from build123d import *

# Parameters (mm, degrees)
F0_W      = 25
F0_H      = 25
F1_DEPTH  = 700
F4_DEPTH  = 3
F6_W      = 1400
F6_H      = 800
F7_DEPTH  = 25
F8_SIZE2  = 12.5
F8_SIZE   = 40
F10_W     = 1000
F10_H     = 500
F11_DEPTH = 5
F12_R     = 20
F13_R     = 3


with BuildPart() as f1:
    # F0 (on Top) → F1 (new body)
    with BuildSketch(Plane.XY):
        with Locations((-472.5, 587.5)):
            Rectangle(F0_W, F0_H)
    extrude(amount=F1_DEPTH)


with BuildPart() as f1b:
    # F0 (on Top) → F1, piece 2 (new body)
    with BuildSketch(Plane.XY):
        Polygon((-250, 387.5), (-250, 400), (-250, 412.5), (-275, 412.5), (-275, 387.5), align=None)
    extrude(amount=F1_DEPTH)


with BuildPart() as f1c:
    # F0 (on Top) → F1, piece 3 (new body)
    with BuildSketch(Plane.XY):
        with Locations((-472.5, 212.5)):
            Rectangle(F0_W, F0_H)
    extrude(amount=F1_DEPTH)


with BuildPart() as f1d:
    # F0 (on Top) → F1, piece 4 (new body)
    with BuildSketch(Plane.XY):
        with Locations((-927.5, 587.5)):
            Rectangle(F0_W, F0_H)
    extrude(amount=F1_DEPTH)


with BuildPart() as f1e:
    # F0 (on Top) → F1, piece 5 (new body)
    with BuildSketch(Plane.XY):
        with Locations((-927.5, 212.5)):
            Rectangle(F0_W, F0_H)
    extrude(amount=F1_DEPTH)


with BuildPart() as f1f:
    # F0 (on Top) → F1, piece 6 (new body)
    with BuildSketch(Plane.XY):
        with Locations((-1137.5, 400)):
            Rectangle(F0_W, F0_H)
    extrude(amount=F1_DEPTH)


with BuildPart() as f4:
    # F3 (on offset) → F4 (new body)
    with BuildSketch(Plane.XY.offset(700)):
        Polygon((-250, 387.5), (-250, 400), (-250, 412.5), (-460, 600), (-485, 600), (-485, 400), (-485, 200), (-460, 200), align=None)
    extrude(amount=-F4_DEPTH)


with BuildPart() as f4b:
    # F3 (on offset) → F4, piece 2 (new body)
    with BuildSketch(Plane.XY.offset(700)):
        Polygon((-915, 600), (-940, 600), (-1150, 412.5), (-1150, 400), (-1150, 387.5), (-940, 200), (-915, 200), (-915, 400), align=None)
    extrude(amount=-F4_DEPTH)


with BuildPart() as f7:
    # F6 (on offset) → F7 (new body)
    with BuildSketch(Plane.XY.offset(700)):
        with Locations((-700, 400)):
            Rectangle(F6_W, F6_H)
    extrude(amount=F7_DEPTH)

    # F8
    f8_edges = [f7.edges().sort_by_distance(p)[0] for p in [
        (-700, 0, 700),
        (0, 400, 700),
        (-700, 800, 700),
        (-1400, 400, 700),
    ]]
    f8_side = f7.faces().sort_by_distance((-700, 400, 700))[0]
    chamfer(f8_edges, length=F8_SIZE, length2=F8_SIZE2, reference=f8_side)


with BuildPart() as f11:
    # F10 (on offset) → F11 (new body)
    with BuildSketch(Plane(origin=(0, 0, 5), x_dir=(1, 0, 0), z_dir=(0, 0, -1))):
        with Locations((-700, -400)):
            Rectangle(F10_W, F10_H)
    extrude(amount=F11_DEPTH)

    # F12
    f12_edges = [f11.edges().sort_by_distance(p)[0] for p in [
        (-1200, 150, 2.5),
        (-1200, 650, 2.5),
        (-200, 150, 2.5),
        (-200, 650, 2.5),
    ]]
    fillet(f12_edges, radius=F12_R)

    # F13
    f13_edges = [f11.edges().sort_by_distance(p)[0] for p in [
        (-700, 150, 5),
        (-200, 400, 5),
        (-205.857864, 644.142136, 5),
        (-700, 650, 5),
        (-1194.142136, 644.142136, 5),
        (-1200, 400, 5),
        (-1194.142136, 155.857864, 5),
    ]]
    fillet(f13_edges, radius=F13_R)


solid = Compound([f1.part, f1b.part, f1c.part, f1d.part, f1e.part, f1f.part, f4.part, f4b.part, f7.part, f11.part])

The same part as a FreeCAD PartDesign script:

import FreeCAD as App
import Part
import Sketcher
from FreeCAD import Vector


def edges_at(feature, points):
    """Names of the edges that pass closest to the given points."""
    edges = feature.Shape.Edges
    near = lambda p: min(range(len(edges)), key=lambda i: edges[i].distToShape(Part.Vertex(*p))[0])
    return sorted({f"Edge{near(p) + 1}" for p in points})


def add_polygon(sketch, points):
    """Adds a closed chain of lines whose ends are joined by coincident constraints."""
    first, n = sketch.GeometryCount, len(points)
    for a, b in zip(points, points[1:] + points[:1]):
        sketch.addGeometry(Part.LineSegment(App.Vector(*a, 0), App.Vector(*b, 0)), False)
    for i in range(n):
        sketch.addConstraint(Sketcher.Constraint("Coincident", first + i, 2, first + (i + 1) % n, 1))

doc = App.newDocument("Part")
body = doc.addObject("PartDesign::Body", "Body")

# Sketch on XY plane
sketch1 = doc.addObject("Sketcher::SketchObject", "Sketch")
body.addObject(sketch1)
sketch1.AttachmentSupport = (doc.XY_Plane, [""])
sketch1.MapMode = "FlatFace"
add_polygon(sketch1, [(-485, 600), (-485, 575), (-460, 575), (-460, 600)])  # lines 0-3
sketch1.addConstraint([
    Sketcher.Constraint("Vertical", 0),
    Sketcher.Constraint("Horizontal", 1),
    Sketcher.Constraint("Vertical", 2),
    Sketcher.Constraint("Horizontal", 3),
    Sketcher.Constraint("Equal", 3, 0),
    Sketcher.Constraint("DistanceX", 1, 1, 1, 2, 25.0),
    Sketcher.Constraint("DistanceX", 0, 2, -1, 1, 485.0),
    Sketcher.Constraint("DistanceY", -1, 1, 0, 2, 575.0),
])
pad1 = doc.addObject("PartDesign::Pad", "Pad")
body.addObject(pad1)
pad1.Profile = sketch1
pad1.Length = 700
body2 = doc.addObject("PartDesign::Body", "Body001")

# Sketch on XY plane
sketch2 = doc.addObject("Sketcher::SketchObject", "Sketch001")
body2.addObject(sketch2)
sketch2.AttachmentSupport = (doc.getObject("XY_Plane001"), [""])
sketch2.MapMode = "FlatFace"
add_polygon(sketch2, [(-250, 388), (-250, 412), (-275, 412), (-275, 388)])  # lines 0-3
sketch2.addConstraint([
    Sketcher.Constraint("Vertical", 0),
    Sketcher.Constraint("Horizontal", 1),
    Sketcher.Constraint("Vertical", 2),
    Sketcher.Constraint("Horizontal", 3),
    Sketcher.Constraint("Equal", 3, 0),
    Sketcher.Constraint("DistanceX", 1, 2, 1, 1, 25.0),
    Sketcher.Constraint("DistanceX", 0, 2, -1, 1, 250.0),
    Sketcher.Constraint("DistanceY", -1, 1, 0, 2, 412.5),
])
pad2 = doc.addObject("PartDesign::Pad", "Pad001")
body2.addObject(pad2)
pad2.Profile = sketch2
pad2.Length = 700
body3 = doc.addObject("PartDesign::Body", "Body002")

# Sketch on XY plane
sketch3 = doc.addObject("Sketcher::SketchObject", "Sketch002")
body3.addObject(sketch3)
sketch3.AttachmentSupport = (doc.getObject("XY_Plane002"), [""])
sketch3.MapMode = "FlatFace"
add_polygon(sketch3, [(-485, 225), (-485, 200), (-460, 200), (-460, 225)])  # lines 0-3
sketch3.addConstraint([
    Sketcher.Constraint("Vertical", 0),
    Sketcher.Constraint("Horizontal", 1),
    Sketcher.Constraint("Vertical", 2),
    Sketcher.Constraint("Horizontal", 3),
    Sketcher.Constraint("Equal", 3, 0),
    Sketcher.Constraint("DistanceX", 1, 1, 1, 2, 25.0),
    Sketcher.Constraint("DistanceX", 0, 2, -1, 1, 485.0),
    Sketcher.Constraint("DistanceY", -1, 1, 0, 2, 200.0),
])
pad3 = doc.addObject("PartDesign::Pad", "Pad002")
body3.addObject(pad3)
pad3.Profile = sketch3
pad3.Length = 700
body4 = doc.addObject("PartDesign::Body", "Body003")

# Sketch on XY plane
sketch4 = doc.addObject("Sketcher::SketchObject", "Sketch003")
body4.addObject(sketch4)
sketch4.AttachmentSupport = (doc.getObject("XY_Plane003"), [""])
sketch4.MapMode = "FlatFace"
add_polygon(sketch4, [(-940, 600), (-940, 575), (-915, 575), (-915, 600)])  # lines 0-3
sketch4.addConstraint([
    Sketcher.Constraint("Vertical", 0),
    Sketcher.Constraint("Horizontal", 1),
    Sketcher.Constraint("Vertical", 2),
    Sketcher.Constraint("Horizontal", 3),
    Sketcher.Constraint("Equal", 3, 0),
    Sketcher.Constraint("DistanceX", 1, 1, 1, 2, 25.0),
    Sketcher.Constraint("DistanceX", 0, 2, -1, 1, 940.0),
    Sketcher.Constraint("DistanceY", -1, 1, 0, 2, 575.0),
])
pad4 = doc.addObject("PartDesign::Pad", "Pad003")
body4.addObject(pad4)
pad4.Profile = sketch4
pad4.Length = 700
body5 = doc.addObject("PartDesign::Body", "Body004")

# Sketch on XY plane
sketch5 = doc.addObject("Sketcher::SketchObject", "Sketch004")
body5.addObject(sketch5)
sketch5.AttachmentSupport = (doc.getObject("XY_Plane004"), [""])
sketch5.MapMode = "FlatFace"
add_polygon(sketch5, [(-940, 225), (-940, 200), (-915, 200), (-915, 225)])  # lines 0-3
sketch5.addConstraint([
    Sketcher.Constraint("Vertical", 0),
    Sketcher.Constraint("Horizontal", 1),
    Sketcher.Constraint("Vertical", 2),
    Sketcher.Constraint("Horizontal", 3),
    Sketcher.Constraint("Equal", 3, 0),
    Sketcher.Constraint("DistanceX", 1, 1, 1, 2, 25.0),
    Sketcher.Constraint("DistanceX", 0, 2, -1, 1, 940.0),
    Sketcher.Constraint("DistanceY", -1, 1, 0, 2, 200.0),
])
pad5 = doc.addObject("PartDesign::Pad", "Pad004")
body5.addObject(pad5)
pad5.Profile = sketch5
pad5.Length = 700
body6 = doc.addObject("PartDesign::Body", "Body005")

# Sketch on XY plane
sketch6 = doc.addObject("Sketcher::SketchObject", "Sketch005")
body6.addObject(sketch6)
sketch6.AttachmentSupport = (doc.getObject("XY_Plane005"), [""])
sketch6.MapMode = "FlatFace"
add_polygon(sketch6, [(-1150, 412), (-1150, 388), (-1125, 388), (-1125, 412)])  # lines 0-3
sketch6.addConstraint([
    Sketcher.Constraint("Vertical", 0),
    Sketcher.Constraint("Horizontal", 1),
    Sketcher.Constraint("Vertical", 2),
    Sketcher.Constraint("Horizontal", 3),
    Sketcher.Constraint("Equal", 3, 0),
    Sketcher.Constraint("DistanceX", 1, 1, 1, 2, 25.0),
    Sketcher.Constraint("DistanceX", 0, 2, -1, 1, 1150.0),
    Sketcher.Constraint("DistanceY", -1, 1, 0, 2, 387.5),
])
pad6 = doc.addObject("PartDesign::Pad", "Pad005")
body6.addObject(pad6)
pad6.Profile = sketch6
pad6.Length = 700
body7 = doc.addObject("PartDesign::Body", "Body006")

# Sketch on XY plane
sketch7 = doc.addObject("Sketcher::SketchObject", "Sketch006")
body7.addObject(sketch7)
sketch7.AttachmentSupport = (doc.getObject("XY_Plane006"), [""])
sketch7.MapMode = "FlatFace"
sketch7.AttachmentOffset = App.Placement(Vector(0, 0, 700), App.Rotation())
add_polygon(sketch7, [(-250, 388), (-250, 412), (-460, 600), (-485, 600), (-485, 200), (-460, 200)])  # lines 0-5
sketch7.addConstraint([
    Sketcher.Constraint("Vertical", 0),
    Sketcher.Constraint("Horizontal", 2),
    Sketcher.Constraint("Vertical", 3),
    Sketcher.Constraint("Horizontal", 4),
    Sketcher.Constraint("Vertical", 1, 2, 4, 2),
    Sketcher.Constraint("Equal", 4, 0),
    Sketcher.Constraint("Equal", 1, 5),
    Sketcher.Constraint("DistanceX", 2, 2, 2, 1, 25.0),
    Sketcher.Constraint("DistanceY", 3, 2, 3, 1, 400.0),
    Sketcher.Constraint("DistanceX", 0, 2, -1, 1, 250.0),
    Sketcher.Constraint("DistanceX", 1, 2, -1, 1, 460.0),
    Sketcher.Constraint("DistanceY", -1, 1, 1, 2, 600.0),
])
pad7 = doc.addObject("PartDesign::Pad", "Pad006")
body7.addObject(pad7)
pad7.Profile = sketch7
pad7.Length = 3
pad7.Reversed = True
body8 = doc.addObject("PartDesign::Body", "Body007")

# Sketch on XY plane
sketch8 = doc.addObject("Sketcher::SketchObject", "Sketch007")
body8.addObject(sketch8)
sketch8.AttachmentSupport = (doc.getObject("XY_Plane007"), [""])
sketch8.MapMode = "FlatFace"
sketch8.AttachmentOffset = App.Placement(Vector(0, 0, 700), App.Rotation())
add_polygon(sketch8, [(-915, 600), (-940, 600), (-1150, 412), (-1150, 388), (-940, 200), (-915, 200)])  # lines 0-5
sketch8.addConstraint([
    Sketcher.Constraint("Horizontal", 0),
    Sketcher.Constraint("Vertical", 2),
    Sketcher.Constraint("Horizontal", 4),
    Sketcher.Constraint("Vertical", 5),
    Sketcher.Constraint("Vertical", 0, 2, 3, 2),
    Sketcher.Constraint("Equal", 4, 2),
    Sketcher.Constraint("Equal", 1, 3),
    Sketcher.Constraint("DistanceX", 0, 2, 0, 1, 25.0),
    Sketcher.Constraint("DistanceY", 5, 1, 5, 2, 400.0),
    Sketcher.Constraint("DistanceX", 0, 2, -1, 1, 940.0),
    Sketcher.Constraint("DistanceY", -1, 1, 0, 2, 600.0),
    Sketcher.Constraint("DistanceX", 1, 2, -1, 1, 1150.0),
])
pad8 = doc.addObject("PartDesign::Pad", "Pad007")
body8.addObject(pad8)
pad8.Profile = sketch8
pad8.Length = 3
pad8.Reversed = True
body9 = doc.addObject("PartDesign::Body", "Body008")

# Sketch on XY plane
sketch9 = doc.addObject("Sketcher::SketchObject", "Sketch008")
body9.addObject(sketch9)
sketch9.AttachmentSupport = (doc.getObject("XY_Plane008"), [""])
sketch9.MapMode = "FlatFace"
sketch9.AttachmentOffset = App.Placement(Vector(0, 0, 700), App.Rotation())
add_polygon(sketch9, [(-1400, 800), (-1400, 0), (0, 0), (0, 800)])  # lines 0-3
sketch9.addConstraint([
    Sketcher.Constraint("Vertical", 0),
    Sketcher.Constraint("Horizontal", 1),
    Sketcher.Constraint("Vertical", 2),
    Sketcher.Constraint("Horizontal", 3),
    Sketcher.Constraint("Coincident", 1, 2, -1, 1),
    Sketcher.Constraint("DistanceX", 1, 1, 1, 2, 1400.0),
    Sketcher.Constraint("DistanceY", 0, 2, 0, 1, 800.0),
])
pad9 = doc.addObject("PartDesign::Pad", "Pad008")
body9.addObject(pad9)
pad9.Profile = sketch9
pad9.Length = 25
doc.recompute()

chamfer = doc.addObject("PartDesign::Chamfer", "Chamfer")
body9.addObject(chamfer)
chamfer.Base = (pad9, edges_at(pad9, [
    (-700, 0, 700),
    (0, 400, 700),
    (-700, 800, 700),
    (-1400, 400, 700),
]))
chamfer.ChamferType = "Two distances"
chamfer.Size = 40
chamfer.Size2 = 12.5
chamfer.FlipDirection = True
body10 = doc.addObject("PartDesign::Body", "Body009")

# Sketch on XY plane
sketch10 = doc.addObject("Sketcher::SketchObject", "Sketch009")
body10.addObject(sketch10)
sketch10.AttachmentSupport = (doc.getObject("XY_Plane009"), [""])
sketch10.MapMode = "FlatFace"
sketch10.AttachmentOffset = App.Placement(Vector(0, 0, 5), App.Rotation())
add_polygon(sketch10, [(-1200, 150), (-1200, 650), (-200, 650), (-200, 150)])  # lines 0-3
sketch10.addConstraint([
    Sketcher.Constraint("Vertical", 0),
    Sketcher.Constraint("Horizontal", 1),
    Sketcher.Constraint("Vertical", 2),
    Sketcher.Constraint("Horizontal", 3),
    Sketcher.Constraint("DistanceX", 1, 1, 1, 2, 1000.0),
    Sketcher.Constraint("DistanceY", 0, 1, 0, 2, 500.0),
    Sketcher.Constraint("DistanceX", 0, 2, -1, 1, 1200.0),
    Sketcher.Constraint("DistanceY", -1, 1, 0, 2, 650.0),
])
pad10 = doc.addObject("PartDesign::Pad", "Pad009")
body10.addObject(pad10)
pad10.Profile = sketch10
pad10.Length = 5
pad10.Reversed = True
doc.recompute()

fillet = doc.addObject("PartDesign::Fillet", "Fillet")
body10.addObject(fillet)
fillet.Base = (pad10, edges_at(pad10, [
    (-1200, 150, 2.5),
    (-1200, 650, 2.5),
    (-200, 150, 2.5),
    (-200, 650, 2.5),
]))
fillet.Radius = 20
doc.recompute()

fillet2 = doc.addObject("PartDesign::Fillet", "Fillet001")
body10.addObject(fillet2)
fillet2.Base = (fillet, edges_at(fillet, [
    (-700, 150, 5),
    (-200, 400, 5),
    (-205.858, 644.142, 5),
    (-700, 650, 5),
    (-1194.142, 644.142, 5),
    (-1200, 400, 5),
    (-1194.142, 155.858, 5),
]))
fillet2.Radius = 3

doc.recompute()
